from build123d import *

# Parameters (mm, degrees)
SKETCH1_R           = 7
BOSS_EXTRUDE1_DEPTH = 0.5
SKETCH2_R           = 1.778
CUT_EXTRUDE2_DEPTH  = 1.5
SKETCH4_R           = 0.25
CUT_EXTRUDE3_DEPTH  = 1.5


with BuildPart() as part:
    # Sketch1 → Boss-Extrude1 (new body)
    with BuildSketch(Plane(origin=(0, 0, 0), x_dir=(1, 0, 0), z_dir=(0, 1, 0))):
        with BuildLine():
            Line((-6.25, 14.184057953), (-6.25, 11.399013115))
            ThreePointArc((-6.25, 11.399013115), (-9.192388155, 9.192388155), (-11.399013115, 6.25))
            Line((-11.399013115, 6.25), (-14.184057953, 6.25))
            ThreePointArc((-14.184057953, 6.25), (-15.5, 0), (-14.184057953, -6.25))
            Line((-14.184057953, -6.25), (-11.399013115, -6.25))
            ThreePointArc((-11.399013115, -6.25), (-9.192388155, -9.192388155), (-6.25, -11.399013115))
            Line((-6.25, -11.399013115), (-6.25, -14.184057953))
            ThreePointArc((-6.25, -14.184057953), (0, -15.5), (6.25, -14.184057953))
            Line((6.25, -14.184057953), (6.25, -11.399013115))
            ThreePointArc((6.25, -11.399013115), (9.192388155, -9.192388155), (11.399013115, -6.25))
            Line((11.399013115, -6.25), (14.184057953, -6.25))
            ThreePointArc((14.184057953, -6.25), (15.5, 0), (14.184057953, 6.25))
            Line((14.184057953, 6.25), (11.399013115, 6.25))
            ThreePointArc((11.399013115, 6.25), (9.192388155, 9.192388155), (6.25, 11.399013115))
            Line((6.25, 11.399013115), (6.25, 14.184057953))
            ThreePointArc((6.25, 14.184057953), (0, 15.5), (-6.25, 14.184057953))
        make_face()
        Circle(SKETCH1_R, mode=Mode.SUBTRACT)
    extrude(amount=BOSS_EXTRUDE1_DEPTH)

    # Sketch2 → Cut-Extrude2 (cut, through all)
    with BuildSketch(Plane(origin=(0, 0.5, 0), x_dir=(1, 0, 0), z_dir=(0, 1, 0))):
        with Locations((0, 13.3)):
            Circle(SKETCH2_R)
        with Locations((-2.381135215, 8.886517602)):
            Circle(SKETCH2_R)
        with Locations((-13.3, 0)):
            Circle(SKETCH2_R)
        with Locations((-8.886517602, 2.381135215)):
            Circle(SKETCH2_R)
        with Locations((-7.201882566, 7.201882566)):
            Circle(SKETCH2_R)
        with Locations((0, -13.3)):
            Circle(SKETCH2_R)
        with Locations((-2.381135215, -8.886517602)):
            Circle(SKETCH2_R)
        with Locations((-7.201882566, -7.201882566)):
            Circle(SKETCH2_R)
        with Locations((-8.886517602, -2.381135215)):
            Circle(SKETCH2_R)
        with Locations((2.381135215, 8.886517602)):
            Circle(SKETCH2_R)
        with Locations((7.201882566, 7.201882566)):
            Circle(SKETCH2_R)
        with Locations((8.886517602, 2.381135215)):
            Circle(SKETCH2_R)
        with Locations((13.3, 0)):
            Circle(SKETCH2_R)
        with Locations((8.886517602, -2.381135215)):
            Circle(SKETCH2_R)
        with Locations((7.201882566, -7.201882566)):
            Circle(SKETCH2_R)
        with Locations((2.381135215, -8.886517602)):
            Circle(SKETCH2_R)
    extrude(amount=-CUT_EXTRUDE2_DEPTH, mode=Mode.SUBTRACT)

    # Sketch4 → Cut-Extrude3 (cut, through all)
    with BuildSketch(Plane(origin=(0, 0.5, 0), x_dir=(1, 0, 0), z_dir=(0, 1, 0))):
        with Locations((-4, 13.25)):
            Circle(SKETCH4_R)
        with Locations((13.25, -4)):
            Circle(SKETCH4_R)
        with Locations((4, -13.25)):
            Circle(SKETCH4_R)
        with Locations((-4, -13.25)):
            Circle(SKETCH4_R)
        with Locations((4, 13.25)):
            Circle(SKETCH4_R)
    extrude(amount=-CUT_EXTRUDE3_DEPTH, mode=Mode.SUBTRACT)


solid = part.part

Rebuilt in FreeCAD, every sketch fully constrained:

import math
import FreeCAD as App
import Part
import Sketcher

V = App.Vector
Q = App.Units.Quantity

doc = App.newDocument("Part")
params = doc.addObject("Spreadsheet::Sheet", "Params")
for row, (alias, value) in enumerate([
    ("sketch1_diameter", "14 mm"),
    ("sketch1_radius", "13 mm"),
    ("sketch1_radius2", "15.5 mm"),
    ("pad1_length", "0.5 mm"),
    ("sketch3_diameter", "0.5 mm"),
], start=1):
    params.set(f"A{row}", alias)
    params.set(f"B{row}", "=" + value)
    params.setAlias(f"B{row}", alias)

body = doc.addObject("PartDesign::Body", "Body")

# Sketch on XZ plane
sketch1 = body.newObject("Sketcher::SketchObject", "Sketch")
sketch1.AttachmentSupport = (doc.getObject("XZ_Plane"), [""])
sketch1.MapMode = "FlatFace"
sketch1.addGeometry([
    Part.LineSegment(V(-6.2, -14.2, 0), V(-6.2, -11.4, 0)),  # 0
    Part.ArcOfCircle(Part.Circle(V(0, 0, 0), V(0, 0, 1), 13), math.radians(-151), math.radians(-119)),  # 1
    Part.LineSegment(V(-11.4, -6.2, 0), V(-14.2, -6.2, 0)),  # 2
    Part.ArcOfCircle(Part.Circle(V(0, 0, 0), V(0, 0, 1), 15.5), math.radians(156), math.radians(204)),  # 3
    Part.LineSegment(V(-14.2, 6.2, 0), V(-11.4, 6.2, 0)),  # 4
    Part.ArcOfCircle(Part.Circle(V(0, 0, 0), V(0, 0, 1), 13), math.radians(119), math.radians(151)),  # 5
    Part.LineSegment(V(-6.2, 11.4, 0), V(-6.2, 14.2, 0)),  # 6
    Part.ArcOfCircle(Part.Circle(V(0, 0, 0), V(0, 0, 1), 15.5), math.radians(66), math.radians(114)),  # 7
    Part.LineSegment(V(6.2, 14.2, 0), V(6.2, 11.4, 0)),  # 8
    Part.ArcOfCircle(Part.Circle(V(0, 0, 0), V(0, 0, 1), 13), math.radians(29), math.radians(61)),  # 9
    Part.LineSegment(V(11.4, 6.2, 0), V(14.2, 6.2, 0)),  # 10
    Part.ArcOfCircle(Part.Circle(V(0, 0, 0), V(0, 0, 1), 15.5), math.radians(-24), math.radians(24)),  # 11
    Part.LineSegment(V(14.2, -6.2, 0), V(11.4, -6.2, 0)),  # 12
    Part.ArcOfCircle(Part.Circle(V(0, 0, 0), V(0, 0, 1), 13), math.radians(-61), math.radians(-29)),  # 13
    Part.LineSegment(V(6.2, -11.4, 0), V(6.2, -14.2, 0)),  # 14
    Part.ArcOfCircle(Part.Circle(V(0, 0, 0), V(0, 0, 1), 15.5), math.radians(-114), math.radians(-66)),  # 15
    Part.Circle(V(0, 0, 0), V(0, 0, 1), 7),  # 16
], False)
sketch1.addConstraint([
    Sketcher.Constraint("Coincident", 0, 2, 1, 2),
    Sketcher.Constraint("Coincident", 1, 1, 2, 1),
    Sketcher.Constraint("Coincident", 2, 2, 3, 2),
    Sketcher.Constraint("Coincident", 3, 1, 4, 1),
    Sketcher.Constraint("Coincident", 4, 2, 5, 2),
    Sketcher.Constraint("Coincident", 5, 1, 6, 1),
    Sketcher.Constraint("Coincident", 6, 2, 7, 2),
    Sketcher.Constraint("Coincident", 7, 1, 8, 1),
    Sketcher.Constraint("Coincident", 8, 2, 9, 2),
    Sketcher.Constraint("Coincident", 9, 1, 10, 1),
    Sketcher.Constraint("Coincident", 10, 2, 11, 2),
    Sketcher.Constraint("Coincident", 11, 1, 12, 1),
    Sketcher.Constraint("Coincident", 12, 2, 13, 2),
    Sketcher.Constraint("Coincident", 13, 1, 14, 1),
    Sketcher.Constraint("Coincident", 14, 2, 15, 2),
    Sketcher.Constraint("Coincident", 15, 1, 0, 1),
    Sketcher.Constraint("Vertical", 0),
    Sketcher.Constraint("Horizontal", 2),
    Sketcher.Constraint("Horizontal", 4),
    Sketcher.Constraint("Vertical", 6),
    Sketcher.Constraint("Vertical", 8),
    Sketcher.Constraint("Horizontal", 10),
    Sketcher.Constraint("Horizontal", 12),
    Sketcher.Constraint("Vertical", 14),
    Sketcher.Constraint("Coincident", 1, 3, -1, 1),
    Sketcher.Constraint("Coincident", 3, 3, -1, 1),
    Sketcher.Constraint("Coincident", 5, 3, -1, 1),
    Sketcher.Constraint("Coincident", 7, 3, -1, 1),
    Sketcher.Constraint("Coincident", 9, 3, -1, 1),
    Sketcher.Constraint("Coincident", 11, 3, -1, 1),
    Sketcher.Constraint("Coincident", 13, 3, -1, 1),
    Sketcher.Constraint("Coincident", 15, 3, -1, 1),
    Sketcher.Constraint("Coincident", 16, 3, -1, 1),
    Sketcher.Constraint("Equal", 1, 5),
    Sketcher.Constraint("Equal", 3, 7),
    Sketcher.Constraint("Equal", 5, 9),
    Sketcher.Constraint("Equal", 7, 11),
    Sketcher.Constraint("Equal", 9, 13),
    Sketcher.Constraint("Equal", 11, 15),
    Sketcher.Constraint("Horizontal", 6, 2, 7, 1),
    Sketcher.Constraint("Horizontal", 4, 2, 9, 1),
    Sketcher.Constraint("Horizontal", 2, 2, 11, 1),
    Sketcher.Constraint("Horizontal", 0, 2, 13, 1),
    Sketcher.Constraint("Vertical", 2, 2, 3, 1),
    Sketcher.Constraint("Vertical", 0, 2, 5, 1),
    Sketcher.Constraint("Equal", 12, 0),
    Sketcher.Constraint("Diameter", 16, Q("14 mm")),
    Sketcher.Constraint("Radius", 1, Q("13 mm")),
    Sketcher.Constraint("Radius", 3, Q("15.5 mm")),
    Sketcher.Constraint("DistanceY", 2, 2, 3, 1, Q("12.5 mm")),
])
sketch1.setExpression("Constraints[46]", "Params.sketch1_diameter")
sketch1.setExpression("Constraints[47]", "Params.sketch1_radius")
sketch1.setExpression("Constraints[48]", "Params.sketch1_radius2")
pad1 = body.newObject("PartDesign::Pad", "Pad")
pad1.Profile = sketch1
pad1.setExpression("Length", "Params.pad1_length")
pad1.Reversed = True

# Sketch on XZ plane
sketch2 = body.newObject("Sketcher::SketchObject", "Sketch001")
sketch2.AttachmentSupport = (doc.getObject("XZ_Plane"), [""])
sketch2.MapMode = "FlatFace"
sketch2.AttachmentOffset = App.Placement(V(0, 0, -0.5), App.Rotation())
sketch2.addGeometry([
    Part.Circle(V(0, -13.3, 0), V(0, 0, 1), 1.8),  # 0
    Part.Circle(V(-2.4, -8.9, 0), V(0, 0, 1), 1.8),  # 1
    Part.Circle(V(-13.3, 0, 0), V(0, 0, 1), 1.8),  # 2
    Part.Circle(V(-8.9, -2.4, 0), V(0, 0, 1), 1.8),  # 3
    Part.Circle(V(-7.2, -7.2, 0), V(0, 0, 1), 1.8),  # 4
    Part.Circle(V(0, 13.3, 0), V(0, 0, 1), 1.8),  # 5
    Part.Circle(V(-2.4, 8.9, 0), V(0, 0, 1), 1.8),  # 6
    Part.Circle(V(-7.2, 7.2, 0), V(0, 0, 1), 1.8),  # 7
    Part.Circle(V(-8.9, 2.4, 0), V(0, 0, 1), 1.8),  # 8
    Part.Circle(V(2.4, -8.9, 0), V(0, 0, 1), 1.8),  # 9
    Part.Circle(V(7.2, -7.2, 0), V(0, 0, 1), 1.8),  # 10
    Part.Circle(V(8.9, -2.4, 0), V(0, 0, 1), 1.8),  # 11
    Part.Circle(V(13.3, 0, 0), V(0, 0, 1), 1.8),  # 12
    Part.Circle(V(8.9, 2.4, 0), V(0, 0, 1), 1.8),  # 13
    Part.Circle(V(7.2, 7.2, 0), V(0, 0, 1), 1.8),  # 14
    Part.Circle(V(2.4, 8.9, 0), V(0, 0, 1), 1.8),  # 15
], False)
sketch2.addConstraint([
    Sketcher.Constraint("Equal", 0, 1),
    Sketcher.Constraint("Equal", 1, 2),
    Sketcher.Constraint("Equal", 2, 3),
    Sketcher.Constraint("Equal", 3, 4),
    Sketcher.Constraint("Equal", 4, 5),
    Sketcher.Constraint("Equal", 5, 6),
    Sketcher.Constraint("Equal", 6, 7),
    Sketcher.Constraint("Equal", 7, 8),
    Sketcher.Constraint("Equal", 8, 9),
    Sketcher.Constraint("Equal", 9, 10),
    Sketcher.Constraint("Equal", 10, 11),
    Sketcher.Constraint("Equal", 11, 12),
    Sketcher.Constraint("Equal", 12, 13),
    Sketcher.Constraint("Equal", 13, 14),
    Sketcher.Constraint("Equal", 14, 15),
    Sketcher.Constraint("Symmetric", 0, 3, 5, 3, -1, 1),
    Sketcher.Constraint("Symmetric", 6, 3, 9, 3, -1, 1),
    Sketcher.Constraint("Symmetric", 7, 3, 10, 3, -1, 1),
    Sketcher.Constraint("Symmetric", 8, 3, 11, 3, -1, 1),
    Sketcher.Constraint("Symmetric", 2, 3, 12, 3, -1, 1),
    Sketcher.Constraint("Symmetric", 3, 3, 13, 3, -1, 1),
    Sketcher.Constraint("Symmetric", 4, 3, 14, 3, -1, 1),
    Sketcher.Constraint("Symmetric", 1, 3, 15, 3, -1, 1),
    Sketcher.Constraint("Symmetric", 1, 3, 9, 3, -2),
    Sketcher.Constraint("Symmetric", 4, 3, 10, 3, -2),
    Sketcher.Constraint("Symmetric", 3, 3, 11, 3, -2),
    Sketcher.Constraint("PointOnObject", 0, 3, -2),
    Sketcher.Constraint("PointOnObject", 2, 3, -1),
    Sketcher.Constraint("Diameter", 0, Q("3.556 mm")),
    Sketcher.Constraint("DistanceY", 0, 3, -1, 1, Q("13.3 mm")),
    Sketcher.Constraint("DistanceX", 2, 3, -1, 1, Q("13.3 mm")),
    Sketcher.Constraint("DistanceY", 4, 3, 6, 3, Q("16.0884 mm")),
    Sketcher.Constraint("DistanceX", 3, 3, 10, 3, Q("16.0884 mm")),
    Sketcher.Constraint("DistanceY", 3, 3, 8, 3, Q("4.76227 mm")),
    Sketcher.Constraint("DistanceX", 1, 3, 9, 3, Q("4.76227 mm")),
    Sketcher.Constraint("DistanceY", 1, 3, -1, 1, Q("8.886518 mm")),
    Sketcher.Constraint("DistanceX", 3, 3, -1, 1, Q("8.886518 mm")),
])
pocket1 = body.newObject("PartDesign::Pocket", "Pocket")
pocket1.Profile = sketch2
pocket1.Type = "ThroughAll"
pocket1.Reversed = True

# Sketch on XZ plane
sketch3 = body.newObject("Sketcher::SketchObject", "Sketch002")
sketch3.AttachmentSupport = (doc.getObject("XZ_Plane"), [""])
sketch3.MapMode = "FlatFace"
sketch3.AttachmentOffset = App.Placement(V(0, 0, -0.5), App.Rotation())
sketch3.addGeometry([
    Part.Circle(V(-4, -13.25, 0), V(0, 0, 1), 0.25),  # 0
    Part.Circle(V(13.25, 4, 0), V(0, 0, 1), 0.25),  # 1
    Part.Circle(V(4, 13.25, 0), V(0, 0, 1), 0.25),  # 2
    Part.Circle(V(-4, 13.25, 0), V(0, 0, 1), 0.25),  # 3
    Part.Circle(V(4, -13.25, 0), V(0, 0, 1), 0.25),  # 4
], False)
sketch3.addConstraint([
    Sketcher.Constraint("Equal", 0, 1),
    Sketcher.Constraint("Equal", 1, 2),
    Sketcher.Constraint("Equal", 2, 3),
    Sketcher.Constraint("Equal", 3, 4),
    Sketcher.Constraint("Symmetric", 0, 3, 2, 3, -1, 1),
    Sketcher.Constraint("Symmetric", 3, 3, 4, 3, -1, 1),
    Sketcher.Constraint("Symmetric", 2, 3, 3, 3, -2),
    Sketcher.Constraint("Diameter", 0, Q("0.5 mm")),
    Sketcher.Constraint("DistanceX", 0, 3, -1, 1, Q("4 mm")),
    Sketcher.Constraint("DistanceY", -1, 1, 1, 3, Q("4 mm")),
    Sketcher.Constraint("DistanceY", 0, 3, 2, 3, Q("26.5 mm")),
    Sketcher.Constraint("DistanceX", -1, 1, 1, 3, Q("13.25 mm")),
])
sketch3.setExpression("Constraints[7]", "Params.sketch3_diameter")
pocket2 = body.newObject("PartDesign::Pocket", "Pocket001")
pocket2.Profile = sketch3
pocket2.Type = "ThroughAll"
pocket2.Reversed = True

doc.recompute()
